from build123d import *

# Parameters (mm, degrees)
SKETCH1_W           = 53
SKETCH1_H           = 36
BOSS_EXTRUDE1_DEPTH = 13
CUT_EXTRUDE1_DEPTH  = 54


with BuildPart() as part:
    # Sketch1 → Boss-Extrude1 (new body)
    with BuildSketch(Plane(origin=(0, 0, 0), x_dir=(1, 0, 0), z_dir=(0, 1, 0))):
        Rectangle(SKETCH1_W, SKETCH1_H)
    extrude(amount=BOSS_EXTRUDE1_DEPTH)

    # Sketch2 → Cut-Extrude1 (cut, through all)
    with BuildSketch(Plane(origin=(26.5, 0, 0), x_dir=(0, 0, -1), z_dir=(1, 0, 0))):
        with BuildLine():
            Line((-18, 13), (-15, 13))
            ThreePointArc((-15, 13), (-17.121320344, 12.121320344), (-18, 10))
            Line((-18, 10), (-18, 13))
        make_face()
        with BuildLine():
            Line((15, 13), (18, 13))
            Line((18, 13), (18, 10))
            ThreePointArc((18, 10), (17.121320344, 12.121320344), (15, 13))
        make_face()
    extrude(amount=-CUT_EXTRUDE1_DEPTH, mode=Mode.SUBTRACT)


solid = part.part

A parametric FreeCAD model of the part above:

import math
import FreeCAD as App
import Part
import Sketcher
from FreeCAD import Vector
Q = App.Units.Quantity

doc = App.newDocument("Part")
body = doc.addObject("PartDesign::Body", "Body")

sketch1 = body.newObject("Sketcher::SketchObject", "Sketch")
sketch1.AttachmentSupport = (doc.getObject("XZ_Plane"), [""])
sketch1.MapMode = "FlatFace"
sketch1.addGeometry([
    Part.LineSegment(Vector(-26, -18, 0), Vector(-26, 18, 0)),
    Part.LineSegment(Vector(-26, 18, 0), Vector(26, 18, 0)),
    Part.LineSegment(Vector(26, 18, 0), Vector(26, -18, 0)),
    Part.LineSegment(Vector(26, -18, 0), Vector(-26, -18, 0)),
], False)
sketch1.addConstraint([
    Sketcher.Constraint("Coincident", 0, 2, 1, 1),
    Sketcher.Constraint("Coincident", 1, 2, 2, 1),
    Sketcher.Constraint("Coincident", 2, 2, 3, 1),
    Sketcher.Constraint("Coincident", 3, 2, 0, 1),
    Sketcher.Constraint("Vertical", 0),
    Sketcher.Constraint("Horizontal", 1),
    Sketcher.Constraint("Vertical", 2),
    Sketcher.Constraint("Horizontal", 3),
    Sketcher.Constraint("Symmetric", 0, 2, 2, 2, -1, 1),
    Sketcher.Constraint("DistanceX", 1, 1, 1, 2, Q("53 mm")),
    Sketcher.Constraint("DistanceY", 0, 1, 0, 2, Q("36 mm")),
])
pad1 = body.newObject("PartDesign::Pad", "Pad")
pad1.Profile = sketch1
pad1.Length = 13
pad1.Reversed = True

sketch2 = body.newObject("Sketcher::SketchObject", "Sketch001")
sketch2.AttachmentSupport = (doc.getObject("YZ_Plane"), [""])
sketch2.MapMode = "FlatFace"
sketch2.AttachmentOffset = App.Placement(Vector(0, 0, 26.5), App.Rotation())
sketch2.addGeometry([
    Part.LineSegment(Vector(13, 15, 0), Vector(13, 18, 0)),
    Part.LineSegment(Vector(13, 18, 0), Vector(10, 18, 0)),
    Part.ArcOfCircle(Part.Circle(Vector(10, 15, 0), Vector(0, 0, 1), 3), math.radians(0), math.radians(90)),
    Part.LineSegment(Vector(13, -18, 0), Vector(13, -15, 0)),
    Part.ArcOfCircle(Part.Circle(Vector(10, -15, 0), Vector(0, 0, 1), 3), math.radians(-90), math.radians(0)),
    Part.LineSegment(Vector(10, -18, 0), Vector(13, -18, 0)),
], False)
sketch2.addConstraint([
    Sketcher.Constraint("Coincident", 0, 2, 1, 1),
    Sketcher.Constraint("Tangent", 1, 2, 2, 2),
    Sketcher.Constraint("Tangent", 2, 1, 0, 1),
    Sketcher.Constraint("Tangent", 3, 2, 4, 2),
    Sketcher.Constraint("Tangent", 4, 1, 5, 1),
    Sketcher.Constraint("Coincident", 5, 2, 3, 1),
    Sketcher.Constraint("Vertical", 0),
    Sketcher.Constraint("Horizontal", 1),
    Sketcher.Constraint("Vertical", 3),
    Sketcher.Constraint("Horizontal", 5),
    Sketcher.Constraint("Equal", 2, 4),
    Sketcher.Constraint("Symmetric", 2, 3, 4, 3, -1),
    Sketcher.Constraint("Radius", 2, Q("3 mm")),
    Sketcher.Constraint("DistanceX", -1, 1, 2, 3, Q("10 mm")),
    Sketcher.Constraint("DistanceY", -1, 1, 2, 3, Q("15 mm")),
])
pocket1 = body.newObject("PartDesign::Pocket", "Pocket")
pocket1.Profile = sketch2
pocket1.Type = "ThroughAll"

doc.recompute()
